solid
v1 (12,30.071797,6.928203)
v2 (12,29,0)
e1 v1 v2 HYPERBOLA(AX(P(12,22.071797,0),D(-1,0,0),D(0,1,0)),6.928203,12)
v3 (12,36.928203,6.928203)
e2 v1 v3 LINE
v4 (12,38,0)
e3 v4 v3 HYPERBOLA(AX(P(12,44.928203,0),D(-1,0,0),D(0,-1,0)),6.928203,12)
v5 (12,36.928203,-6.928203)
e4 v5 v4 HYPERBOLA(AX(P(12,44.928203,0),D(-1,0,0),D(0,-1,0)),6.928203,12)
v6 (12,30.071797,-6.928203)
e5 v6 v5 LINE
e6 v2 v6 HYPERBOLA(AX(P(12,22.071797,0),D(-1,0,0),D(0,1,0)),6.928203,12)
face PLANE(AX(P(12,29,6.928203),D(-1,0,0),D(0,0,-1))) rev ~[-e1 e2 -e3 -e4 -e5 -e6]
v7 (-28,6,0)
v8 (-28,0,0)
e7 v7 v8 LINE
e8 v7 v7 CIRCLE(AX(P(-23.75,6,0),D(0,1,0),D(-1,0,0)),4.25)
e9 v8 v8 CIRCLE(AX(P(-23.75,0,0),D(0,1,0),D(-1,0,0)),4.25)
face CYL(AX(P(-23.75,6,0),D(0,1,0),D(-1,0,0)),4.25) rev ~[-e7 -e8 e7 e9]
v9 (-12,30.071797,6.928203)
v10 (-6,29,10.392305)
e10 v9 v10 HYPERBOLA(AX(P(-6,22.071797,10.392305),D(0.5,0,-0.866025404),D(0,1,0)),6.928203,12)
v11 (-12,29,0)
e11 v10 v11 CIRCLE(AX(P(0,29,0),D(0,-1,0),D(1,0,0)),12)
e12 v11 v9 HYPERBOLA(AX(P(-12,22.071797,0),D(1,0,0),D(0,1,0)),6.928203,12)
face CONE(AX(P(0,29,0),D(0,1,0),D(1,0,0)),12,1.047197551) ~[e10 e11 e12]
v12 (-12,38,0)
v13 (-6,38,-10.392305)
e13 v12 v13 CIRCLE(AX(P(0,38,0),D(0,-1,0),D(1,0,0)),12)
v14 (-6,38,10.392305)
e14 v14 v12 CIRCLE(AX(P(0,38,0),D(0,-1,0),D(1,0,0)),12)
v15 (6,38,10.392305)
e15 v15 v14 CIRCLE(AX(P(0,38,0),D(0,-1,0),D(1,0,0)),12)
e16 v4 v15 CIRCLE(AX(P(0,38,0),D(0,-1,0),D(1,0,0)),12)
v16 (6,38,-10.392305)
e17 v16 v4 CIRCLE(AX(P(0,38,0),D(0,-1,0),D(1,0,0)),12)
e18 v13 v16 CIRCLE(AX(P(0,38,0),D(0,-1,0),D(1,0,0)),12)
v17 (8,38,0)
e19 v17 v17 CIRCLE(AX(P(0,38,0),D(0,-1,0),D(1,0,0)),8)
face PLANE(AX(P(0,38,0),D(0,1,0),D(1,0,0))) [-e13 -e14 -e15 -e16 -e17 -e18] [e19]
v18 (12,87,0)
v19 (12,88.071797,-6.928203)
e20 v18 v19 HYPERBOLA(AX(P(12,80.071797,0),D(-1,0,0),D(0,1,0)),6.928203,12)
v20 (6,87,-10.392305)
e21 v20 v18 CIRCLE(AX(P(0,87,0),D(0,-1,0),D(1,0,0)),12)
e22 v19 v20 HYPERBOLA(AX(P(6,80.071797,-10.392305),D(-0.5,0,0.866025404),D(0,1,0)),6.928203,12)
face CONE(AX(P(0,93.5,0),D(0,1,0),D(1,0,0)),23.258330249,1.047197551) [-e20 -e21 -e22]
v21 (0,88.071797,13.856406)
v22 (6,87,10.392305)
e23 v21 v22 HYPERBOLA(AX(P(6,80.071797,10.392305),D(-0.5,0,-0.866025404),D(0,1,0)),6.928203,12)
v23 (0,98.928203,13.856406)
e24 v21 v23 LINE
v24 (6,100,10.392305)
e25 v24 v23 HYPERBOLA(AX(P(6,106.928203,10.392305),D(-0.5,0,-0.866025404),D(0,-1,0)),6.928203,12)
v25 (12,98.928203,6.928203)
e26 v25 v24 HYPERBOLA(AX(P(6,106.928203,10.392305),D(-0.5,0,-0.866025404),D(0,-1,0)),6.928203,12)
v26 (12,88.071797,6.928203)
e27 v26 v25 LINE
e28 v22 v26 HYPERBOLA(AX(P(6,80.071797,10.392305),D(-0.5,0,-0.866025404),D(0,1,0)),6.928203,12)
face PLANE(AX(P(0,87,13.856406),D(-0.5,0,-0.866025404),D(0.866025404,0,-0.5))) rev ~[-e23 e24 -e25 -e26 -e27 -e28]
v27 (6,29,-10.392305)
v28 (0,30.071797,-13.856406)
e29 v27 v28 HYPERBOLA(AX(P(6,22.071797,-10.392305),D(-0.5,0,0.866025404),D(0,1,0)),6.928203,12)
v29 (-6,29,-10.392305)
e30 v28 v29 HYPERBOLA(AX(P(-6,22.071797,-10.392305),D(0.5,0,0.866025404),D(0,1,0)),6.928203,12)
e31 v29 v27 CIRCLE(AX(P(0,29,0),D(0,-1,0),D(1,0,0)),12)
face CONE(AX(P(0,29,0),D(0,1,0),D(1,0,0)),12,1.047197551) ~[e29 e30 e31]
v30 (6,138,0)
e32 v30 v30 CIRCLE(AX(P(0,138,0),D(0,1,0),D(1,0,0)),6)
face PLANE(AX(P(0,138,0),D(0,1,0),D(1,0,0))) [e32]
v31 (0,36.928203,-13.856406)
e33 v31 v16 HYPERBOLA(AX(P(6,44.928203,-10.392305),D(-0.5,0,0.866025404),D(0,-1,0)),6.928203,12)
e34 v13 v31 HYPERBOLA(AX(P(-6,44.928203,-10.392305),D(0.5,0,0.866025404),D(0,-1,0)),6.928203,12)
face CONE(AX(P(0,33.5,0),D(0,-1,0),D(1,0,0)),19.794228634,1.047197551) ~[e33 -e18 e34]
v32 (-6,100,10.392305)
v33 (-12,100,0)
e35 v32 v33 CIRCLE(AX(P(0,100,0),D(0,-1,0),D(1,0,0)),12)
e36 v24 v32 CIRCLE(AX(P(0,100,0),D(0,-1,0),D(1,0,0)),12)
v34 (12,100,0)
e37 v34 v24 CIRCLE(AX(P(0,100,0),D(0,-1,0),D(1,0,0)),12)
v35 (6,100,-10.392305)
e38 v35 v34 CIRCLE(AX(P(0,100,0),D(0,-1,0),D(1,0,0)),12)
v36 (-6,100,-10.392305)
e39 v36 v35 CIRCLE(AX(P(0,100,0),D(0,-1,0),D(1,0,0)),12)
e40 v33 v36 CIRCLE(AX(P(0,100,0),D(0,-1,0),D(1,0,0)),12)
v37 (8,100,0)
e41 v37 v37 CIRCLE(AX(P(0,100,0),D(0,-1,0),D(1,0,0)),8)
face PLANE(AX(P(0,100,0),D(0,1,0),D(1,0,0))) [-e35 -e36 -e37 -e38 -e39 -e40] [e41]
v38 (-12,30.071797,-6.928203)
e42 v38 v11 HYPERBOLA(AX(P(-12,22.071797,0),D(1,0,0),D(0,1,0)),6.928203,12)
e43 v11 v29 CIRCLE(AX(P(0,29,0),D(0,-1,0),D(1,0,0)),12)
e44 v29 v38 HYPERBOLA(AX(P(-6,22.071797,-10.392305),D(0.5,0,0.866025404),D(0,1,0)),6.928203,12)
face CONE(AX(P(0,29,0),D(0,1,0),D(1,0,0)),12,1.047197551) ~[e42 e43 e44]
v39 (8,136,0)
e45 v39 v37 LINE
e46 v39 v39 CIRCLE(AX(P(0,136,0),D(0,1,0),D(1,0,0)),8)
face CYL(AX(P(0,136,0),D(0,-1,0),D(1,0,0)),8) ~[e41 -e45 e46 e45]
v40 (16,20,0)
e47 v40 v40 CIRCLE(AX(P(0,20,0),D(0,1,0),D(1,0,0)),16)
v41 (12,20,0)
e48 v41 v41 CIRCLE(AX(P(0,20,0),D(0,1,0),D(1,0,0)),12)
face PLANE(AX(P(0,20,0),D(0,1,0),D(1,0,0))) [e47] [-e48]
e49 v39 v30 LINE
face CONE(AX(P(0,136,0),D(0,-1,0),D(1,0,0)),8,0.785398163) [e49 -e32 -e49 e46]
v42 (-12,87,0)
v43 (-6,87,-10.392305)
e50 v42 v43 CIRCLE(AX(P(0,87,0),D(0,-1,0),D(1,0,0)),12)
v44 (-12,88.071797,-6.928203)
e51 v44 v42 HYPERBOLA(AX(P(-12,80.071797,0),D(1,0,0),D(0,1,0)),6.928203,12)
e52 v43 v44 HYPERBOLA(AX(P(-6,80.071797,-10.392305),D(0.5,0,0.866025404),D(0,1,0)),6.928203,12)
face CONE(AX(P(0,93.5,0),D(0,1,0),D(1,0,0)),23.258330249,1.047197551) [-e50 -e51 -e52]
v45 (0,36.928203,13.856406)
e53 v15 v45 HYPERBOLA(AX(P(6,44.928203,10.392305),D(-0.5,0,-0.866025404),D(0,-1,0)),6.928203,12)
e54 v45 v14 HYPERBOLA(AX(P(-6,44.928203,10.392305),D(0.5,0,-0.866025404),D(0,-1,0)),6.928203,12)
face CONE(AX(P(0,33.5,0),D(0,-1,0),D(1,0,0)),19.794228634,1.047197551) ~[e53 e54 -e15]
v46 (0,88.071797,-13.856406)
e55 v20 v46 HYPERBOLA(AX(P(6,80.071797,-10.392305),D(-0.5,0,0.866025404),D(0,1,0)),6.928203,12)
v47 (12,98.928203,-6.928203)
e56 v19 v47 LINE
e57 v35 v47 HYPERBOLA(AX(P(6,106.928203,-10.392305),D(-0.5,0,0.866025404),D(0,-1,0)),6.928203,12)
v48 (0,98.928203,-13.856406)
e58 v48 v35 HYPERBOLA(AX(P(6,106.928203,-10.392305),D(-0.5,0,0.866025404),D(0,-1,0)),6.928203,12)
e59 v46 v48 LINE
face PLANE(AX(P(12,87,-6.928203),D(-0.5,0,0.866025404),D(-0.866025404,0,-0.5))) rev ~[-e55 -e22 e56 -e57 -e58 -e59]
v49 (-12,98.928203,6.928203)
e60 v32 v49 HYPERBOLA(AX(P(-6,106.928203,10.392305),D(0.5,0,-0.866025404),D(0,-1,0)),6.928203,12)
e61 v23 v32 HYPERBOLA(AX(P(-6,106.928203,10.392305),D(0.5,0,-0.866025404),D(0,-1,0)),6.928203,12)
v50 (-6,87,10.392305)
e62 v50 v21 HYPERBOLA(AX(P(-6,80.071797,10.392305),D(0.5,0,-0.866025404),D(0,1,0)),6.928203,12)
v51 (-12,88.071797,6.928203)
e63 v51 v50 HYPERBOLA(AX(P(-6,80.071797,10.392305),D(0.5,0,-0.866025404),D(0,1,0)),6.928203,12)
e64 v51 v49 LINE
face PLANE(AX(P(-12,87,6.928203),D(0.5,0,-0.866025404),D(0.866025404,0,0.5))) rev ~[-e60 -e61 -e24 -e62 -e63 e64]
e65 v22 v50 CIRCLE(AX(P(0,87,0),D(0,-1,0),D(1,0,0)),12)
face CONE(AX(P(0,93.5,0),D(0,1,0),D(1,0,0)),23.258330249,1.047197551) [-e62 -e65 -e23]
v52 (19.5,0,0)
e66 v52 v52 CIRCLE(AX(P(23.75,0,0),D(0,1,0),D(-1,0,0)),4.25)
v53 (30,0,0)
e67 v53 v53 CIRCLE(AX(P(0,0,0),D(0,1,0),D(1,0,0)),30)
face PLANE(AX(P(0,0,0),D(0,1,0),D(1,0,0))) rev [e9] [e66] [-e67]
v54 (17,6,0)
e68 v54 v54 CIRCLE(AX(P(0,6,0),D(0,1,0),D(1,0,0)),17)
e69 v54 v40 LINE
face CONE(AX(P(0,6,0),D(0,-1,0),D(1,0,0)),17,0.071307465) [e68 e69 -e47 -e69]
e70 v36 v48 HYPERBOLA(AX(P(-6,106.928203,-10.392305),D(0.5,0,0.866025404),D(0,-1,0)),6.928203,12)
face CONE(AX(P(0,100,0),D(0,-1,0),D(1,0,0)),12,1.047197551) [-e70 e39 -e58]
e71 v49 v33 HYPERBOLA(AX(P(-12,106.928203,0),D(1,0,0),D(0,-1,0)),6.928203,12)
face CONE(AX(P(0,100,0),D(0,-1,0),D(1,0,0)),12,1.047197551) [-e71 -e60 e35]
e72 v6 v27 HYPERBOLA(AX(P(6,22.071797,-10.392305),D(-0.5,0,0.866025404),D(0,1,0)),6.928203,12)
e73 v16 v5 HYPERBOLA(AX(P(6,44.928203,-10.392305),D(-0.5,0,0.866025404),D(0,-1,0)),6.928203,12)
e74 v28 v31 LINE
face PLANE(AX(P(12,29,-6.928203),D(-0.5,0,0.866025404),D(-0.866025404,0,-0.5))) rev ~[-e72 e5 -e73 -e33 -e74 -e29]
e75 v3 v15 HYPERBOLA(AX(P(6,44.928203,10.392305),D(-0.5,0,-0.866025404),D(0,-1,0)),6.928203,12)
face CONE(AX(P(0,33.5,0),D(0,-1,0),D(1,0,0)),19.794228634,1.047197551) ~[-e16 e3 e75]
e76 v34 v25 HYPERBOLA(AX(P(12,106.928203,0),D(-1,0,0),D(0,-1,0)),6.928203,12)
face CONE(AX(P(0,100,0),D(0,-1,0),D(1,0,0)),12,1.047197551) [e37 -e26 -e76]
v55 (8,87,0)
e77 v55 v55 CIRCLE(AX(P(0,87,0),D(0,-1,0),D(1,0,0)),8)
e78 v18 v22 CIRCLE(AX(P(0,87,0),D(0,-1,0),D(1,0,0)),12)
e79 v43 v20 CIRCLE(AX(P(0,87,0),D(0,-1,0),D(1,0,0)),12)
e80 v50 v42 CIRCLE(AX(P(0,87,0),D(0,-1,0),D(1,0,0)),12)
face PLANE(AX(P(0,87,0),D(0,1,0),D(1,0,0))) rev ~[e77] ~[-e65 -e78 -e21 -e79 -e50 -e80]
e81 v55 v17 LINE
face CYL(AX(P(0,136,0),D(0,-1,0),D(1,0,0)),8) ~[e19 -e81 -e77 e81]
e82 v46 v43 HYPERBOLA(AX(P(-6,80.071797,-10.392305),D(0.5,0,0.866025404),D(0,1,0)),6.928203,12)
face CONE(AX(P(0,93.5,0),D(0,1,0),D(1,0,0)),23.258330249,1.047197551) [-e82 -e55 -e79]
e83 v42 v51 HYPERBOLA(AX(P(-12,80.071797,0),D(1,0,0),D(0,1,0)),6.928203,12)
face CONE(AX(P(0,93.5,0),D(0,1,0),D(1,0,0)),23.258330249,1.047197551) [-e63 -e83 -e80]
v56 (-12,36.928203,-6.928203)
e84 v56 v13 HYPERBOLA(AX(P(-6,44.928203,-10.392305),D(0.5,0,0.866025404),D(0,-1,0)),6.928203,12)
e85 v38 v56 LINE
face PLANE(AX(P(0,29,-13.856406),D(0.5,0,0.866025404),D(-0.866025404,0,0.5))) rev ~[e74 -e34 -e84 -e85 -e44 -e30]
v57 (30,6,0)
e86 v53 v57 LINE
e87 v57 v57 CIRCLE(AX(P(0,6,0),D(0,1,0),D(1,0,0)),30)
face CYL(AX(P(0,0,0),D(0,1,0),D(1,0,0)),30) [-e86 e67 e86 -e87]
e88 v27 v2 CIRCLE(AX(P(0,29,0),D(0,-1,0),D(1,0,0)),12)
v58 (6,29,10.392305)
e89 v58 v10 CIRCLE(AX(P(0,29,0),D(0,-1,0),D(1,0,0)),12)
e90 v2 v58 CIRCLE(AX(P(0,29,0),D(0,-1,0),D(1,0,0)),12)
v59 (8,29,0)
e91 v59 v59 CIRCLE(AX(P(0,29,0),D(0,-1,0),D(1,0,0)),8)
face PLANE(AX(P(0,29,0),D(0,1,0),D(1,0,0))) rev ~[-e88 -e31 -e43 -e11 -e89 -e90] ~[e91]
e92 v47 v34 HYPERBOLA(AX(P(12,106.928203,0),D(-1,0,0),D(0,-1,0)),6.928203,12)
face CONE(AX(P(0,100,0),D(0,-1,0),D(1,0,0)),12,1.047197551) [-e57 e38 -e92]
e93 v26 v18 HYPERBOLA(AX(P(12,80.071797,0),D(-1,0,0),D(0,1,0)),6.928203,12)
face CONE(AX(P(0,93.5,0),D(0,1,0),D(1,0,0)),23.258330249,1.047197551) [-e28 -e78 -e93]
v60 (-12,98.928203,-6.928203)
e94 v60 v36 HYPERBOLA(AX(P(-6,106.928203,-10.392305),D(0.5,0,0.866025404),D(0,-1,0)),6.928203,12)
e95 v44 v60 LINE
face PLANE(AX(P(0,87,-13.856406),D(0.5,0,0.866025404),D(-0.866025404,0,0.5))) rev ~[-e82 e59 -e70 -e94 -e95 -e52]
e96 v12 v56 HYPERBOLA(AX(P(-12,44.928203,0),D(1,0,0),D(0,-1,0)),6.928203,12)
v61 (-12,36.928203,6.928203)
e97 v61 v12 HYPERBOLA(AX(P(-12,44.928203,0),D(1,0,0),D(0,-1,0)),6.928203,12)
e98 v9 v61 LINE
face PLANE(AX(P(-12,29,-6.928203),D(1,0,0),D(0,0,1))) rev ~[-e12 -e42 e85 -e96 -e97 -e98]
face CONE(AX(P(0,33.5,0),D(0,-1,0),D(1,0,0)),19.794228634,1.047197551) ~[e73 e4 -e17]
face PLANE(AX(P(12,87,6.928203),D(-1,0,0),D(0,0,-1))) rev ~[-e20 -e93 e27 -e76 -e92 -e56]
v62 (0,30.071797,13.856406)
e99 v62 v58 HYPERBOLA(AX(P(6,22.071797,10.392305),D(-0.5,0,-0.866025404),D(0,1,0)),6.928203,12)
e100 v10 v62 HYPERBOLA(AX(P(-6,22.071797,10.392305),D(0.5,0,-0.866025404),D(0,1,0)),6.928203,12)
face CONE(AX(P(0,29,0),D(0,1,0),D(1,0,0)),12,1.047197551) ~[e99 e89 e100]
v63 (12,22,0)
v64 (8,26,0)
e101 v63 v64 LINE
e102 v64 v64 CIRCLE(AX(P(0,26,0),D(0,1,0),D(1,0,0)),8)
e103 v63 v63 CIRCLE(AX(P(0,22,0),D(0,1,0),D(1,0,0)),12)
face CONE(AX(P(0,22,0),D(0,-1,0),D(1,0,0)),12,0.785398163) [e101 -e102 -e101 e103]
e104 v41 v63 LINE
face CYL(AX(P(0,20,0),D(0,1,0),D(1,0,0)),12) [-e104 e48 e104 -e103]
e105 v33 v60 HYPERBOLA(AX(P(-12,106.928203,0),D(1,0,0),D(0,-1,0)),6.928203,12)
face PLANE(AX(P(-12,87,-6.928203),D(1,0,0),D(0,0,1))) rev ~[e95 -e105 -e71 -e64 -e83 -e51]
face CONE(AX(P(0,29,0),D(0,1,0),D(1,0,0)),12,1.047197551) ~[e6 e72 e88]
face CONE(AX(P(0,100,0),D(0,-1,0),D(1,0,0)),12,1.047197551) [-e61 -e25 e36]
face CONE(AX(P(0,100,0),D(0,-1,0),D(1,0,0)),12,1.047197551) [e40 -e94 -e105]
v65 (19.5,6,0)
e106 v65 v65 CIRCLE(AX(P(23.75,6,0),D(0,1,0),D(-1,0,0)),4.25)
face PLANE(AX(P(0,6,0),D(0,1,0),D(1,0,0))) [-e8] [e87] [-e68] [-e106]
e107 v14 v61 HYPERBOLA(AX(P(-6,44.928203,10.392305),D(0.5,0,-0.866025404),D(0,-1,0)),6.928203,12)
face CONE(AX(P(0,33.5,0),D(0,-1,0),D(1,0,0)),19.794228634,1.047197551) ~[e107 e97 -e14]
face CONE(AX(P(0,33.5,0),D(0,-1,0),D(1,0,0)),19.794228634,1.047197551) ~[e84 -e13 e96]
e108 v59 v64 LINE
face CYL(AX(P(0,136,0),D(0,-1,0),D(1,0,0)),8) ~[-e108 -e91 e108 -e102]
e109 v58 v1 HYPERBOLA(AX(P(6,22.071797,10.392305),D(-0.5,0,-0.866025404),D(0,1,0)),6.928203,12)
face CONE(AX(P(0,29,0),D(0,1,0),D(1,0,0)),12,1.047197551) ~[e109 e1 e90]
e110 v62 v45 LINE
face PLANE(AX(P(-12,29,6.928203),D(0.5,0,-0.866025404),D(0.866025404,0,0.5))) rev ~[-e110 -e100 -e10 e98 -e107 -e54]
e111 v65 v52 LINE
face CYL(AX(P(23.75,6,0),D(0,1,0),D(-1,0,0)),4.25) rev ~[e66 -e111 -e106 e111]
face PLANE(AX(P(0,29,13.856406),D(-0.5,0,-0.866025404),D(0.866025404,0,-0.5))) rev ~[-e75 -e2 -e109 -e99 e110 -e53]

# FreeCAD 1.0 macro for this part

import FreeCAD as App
import Part
import Sketcher

V = App.Vector
Q = App.Units.Quantity


def add_polygon(sketch, points):
    """Adds a closed chain of lines whose ends are joined by coincident constraints."""
    first, n = sketch.GeometryCount, len(points)
    for a, b in zip(points, points[1:] + points[:1]):
        sketch.addGeometry(Part.LineSegment(App.Vector(*a, 0), App.Vector(*b, 0)), False)
    for i in range(n):
        sketch.addConstraint(Sketcher.Constraint("Coincident", first + i, 2, first + (i + 1) % n, 1))

doc = App.newDocument("Part")
body = doc.addObject("PartDesign::Body", "Body")

# Sketch on XY plane
sketch1 = doc.addObject("Sketcher::SketchObject", "Sketch")
body.addObject(sketch1)
sketch1.AttachmentSupport = (doc.XY_Plane, [""])
sketch1.MapMode = "FlatFace"
add_polygon(sketch1, [(-30, 0), (0, 0), (0, 138), (-6, 138), (-8, 136), (-8, 26), (-12, 22), (-12, 20), (-16, 20), (-17, 6), (-30, 6)])  # lines 0-10
sketch1.addConstraint([
    Sketcher.Constraint("Horizontal", 0),
    Sketcher.Constraint("Vertical", 1),
    Sketcher.Constraint("Horizontal", 2),
    Sketcher.Constraint("Vertical", 4),
    Sketcher.Constraint("Vertical", 6),
    Sketcher.Constraint("Horizontal", 7),
    Sketcher.Constraint("Horizontal", 9),
    Sketcher.Constraint("Vertical", 10),
    Sketcher.Constraint("Coincident", 0, 2, -1, 1),
    Sketcher.Constraint("Parallel", 3, 5),
    Sketcher.Constraint("Equal", 2, 10),
    Sketcher.Constraint("DistanceX", 0, 1, 0, 2, 30.0),
    Sketcher.Constraint("DistanceX", 2, 2, 2, 1, 6.0),
    Sketcher.Constraint("DistanceX", 7, 2, 7, 1, 4.0),
    Sketcher.Constraint("DistanceX", 9, 2, 9, 1, 13.0),
    Sketcher.Constraint("DistanceY", 1, 1, 1, 2, 138.0),
    Sketcher.Constraint("DistanceY", 4, 2, 4, 1, 110.0),
    Sketcher.Constraint("DistanceY", 6, 2, 6, 1, 2.0),
    Sketcher.Constraint("Angle", 3, Q("-135 deg")),
    Sketcher.Constraint("DistanceX", 3, 2, -1, 1, 8.0),
    Sketcher.Constraint("DistanceX", 5, 2, -1, 1, 12.0),
])
revolution = doc.addObject("PartDesign::Revolution", "Revolution")
body.addObject(revolution)
revolution.Profile = sketch1
revolution.ReferenceAxis = (sketch1, ["V_Axis"])
revolution.Angle = 360

# Sketch on XZ plane
sketch2 = doc.addObject("Sketcher::SketchObject", "Sketch001")
body.addObject(sketch2)
sketch2.AttachmentSupport = (doc.XZ_Plane, [""])
sketch2.MapMode = "FlatFace"
sketch2.AttachmentOffset = App.Placement(V(0, 0, -29), App.Rotation())
add_polygon(sketch2, [(0, -14), (-12, -7), (-12, 7), (0, 14), (12, 7), (12, -7)])  # lines 0-5
sketch2.addConstraint([
    Sketcher.Constraint("Vertical", 1),
    Sketcher.Constraint("Vertical", 4),
    Sketcher.Constraint("Symmetric", 0, 2, 3, 2, -1, 1),
    Sketcher.Constraint("Symmetric", 2, 2, 5, 2, -1, 1),
    Sketcher.Constraint("PointOnObject", 2, 2, -2),
    Sketcher.Constraint("Parallel", 2, 5),
    Sketcher.Constraint("Horizontal", 1, 2, 3, 2),
    Sketcher.Constraint("Angle", 0, Q("150 deg")),
    Sketcher.Constraint("DistanceX", 0, 2, -1, 1, 12.0),
    Sketcher.Constraint("DistanceY", 1, 1, 1, 2, 13.856406),
])
pad1 = doc.addObject("PartDesign::Pad", "Pad")
body.addObject(pad1)
pad1.Profile = sketch2
pad1.Length = 9
pad1.Reversed = True

# Sketch on XZ plane
sketch3 = doc.addObject("Sketcher::SketchObject", "Sketch002")
body.addObject(sketch3)
sketch3.AttachmentSupport = (doc.XZ_Plane, [""])
sketch3.MapMode = "FlatFace"
sketch3.AttachmentOffset = App.Placement(V(0, 0, -87), App.Rotation())
add_polygon(sketch3, [(12, -7), (0, -14), (-12, -7), (-12, 7), (0, 14), (12, 7)])  # lines 0-5
sketch3.addConstraint([
    Sketcher.Constraint("Vertical", 2),
    Sketcher.Constraint("Vertical", 5),
    Sketcher.Constraint("Symmetric", 0, 2, 3, 2, -1, 1),
    Sketcher.Constraint("Symmetric", 1, 2, 4, 2, -1, 1),
    Sketcher.Constraint("PointOnObject", 0, 2, -2),
    Sketcher.Constraint("Parallel", 0, 3),
    Sketcher.Constraint("Horizontal", 2, 2, 4, 2),
    Sketcher.Constraint("Angle", 0, Q("-150 deg")),
    Sketcher.Constraint("DistanceX", 1, 2, -1, 1, 12.0),
    Sketcher.Constraint("DistanceY", 2, 1, 2, 2, 13.856406),
])
pad2 = doc.addObject("PartDesign::Pad", "Pad001")
body.addObject(pad2)
pad2.Profile = sketch3
pad2.Length = 13
pad2.Reversed = True

# Sketch on XY plane
sketch4 = doc.addObject("Sketcher::SketchObject", "Sketch003")
body.addObject(sketch4)
sketch4.AttachmentSupport = (doc.XY_Plane, [""])
sketch4.MapMode = "FlatFace"
add_polygon(sketch4, [(-12, 100), (-23.3, 100), (-23.3, 93.5)])  # lines 0-2
add_polygon(sketch4, [(-23.3, 93.5), (-23.3, 87), (-12, 87)])  # lines 3-5
add_polygon(sketch4, [(-19.8, 38), (-19.8, 33.5), (-12, 38)])  # lines 6-8
add_polygon(sketch4, [(-19.8, 33.5), (-19.8, 29), (-12, 29)])  # lines 9-11
sketch4.addConstraint([
    Sketcher.Constraint("Horizontal", 0),
    Sketcher.Constraint("Vertical", 1),
    Sketcher.Constraint("Vertical", 3),
    Sketcher.Constraint("Horizontal", 4),
    Sketcher.Constraint("Vertical", 6),
    Sketcher.Constraint("Horizontal", 8),
    Sketcher.Constraint("Vertical", 9),
    Sketcher.Constraint("Horizontal", 10),
    Sketcher.Constraint("Coincident", 5, 2, 1, 2),
    Sketcher.Constraint("Coincident", 11, 2, 6, 2),
    Sketcher.Constraint("Parallel", 2, 7),
    Sketcher.Constraint("Parallel", 5, 11),
    Sketcher.Constraint("Vertical", 2, 2, 4, 2),
    Sketcher.Constraint("Vertical", 4, 2, 7, 2),
    Sketcher.Constraint("Vertical", 7, 2, 10, 2),
    Sketcher.Constraint("Equal", 1, 3),
    Sketcher.Constraint("Angle", 2, Q("30 deg")),
    Sketcher.Constraint("Distance", 2, 13.0),
    Sketcher.Constraint("Distance", 7, 9.0),
    Sketcher.Constraint("DistanceY", -1, 1, 0, 2, 100.0),
    Sketcher.Constraint("DistanceX", 2, 2, -1, 1, 12.0),
    Sketcher.Constraint("DistanceY", -1, 1, 7, 2, 38.0),
])
groove = doc.addObject("PartDesign::Groove", "Groove")
body.addObject(groove)
groove.Profile = sketch4
groove.ReferenceAxis = (sketch4, ["V_Axis"])
groove.Angle = 360

# Sketch on XZ plane
sketch5 = doc.addObject("Sketcher::SketchObject", "Sketch004")
body.addObject(sketch5)
sketch5.AttachmentSupport = (doc.XZ_Plane, [""])
sketch5.MapMode = "FlatFace"
sketch5.AttachmentOffset = App.Placement(V(0, 0, -6), App.Rotation())
sketch5.addGeometry([
    Part.Circle(V(-23.8, 0, 0), V(0, 0, 1), 4.2),
    Part.Circle(V(23.8, 0, 0), V(0, 0, 1), 4.2),
], False)
sketch5.addConstraint([
    Sketcher.Constraint("Equal", 0, 1),
    Sketcher.Constraint("Symmetric", 0, 3, 1, 3, -1, 1),
    Sketcher.Constraint("PointOnObject", 0, 3, -1),
    Sketcher.Constraint("Diameter", 0, 8.5),
    Sketcher.Constraint("DistanceX", 0, 3, 1, 3, 47.5),
])
pocket1 = doc.addObject("PartDesign::Pocket", "Pocket")
body.addObject(pocket1)
pocket1.Profile = sketch5
pocket1.Type = "ThroughAll"
pocket1.Reversed = True

doc.recompute()
